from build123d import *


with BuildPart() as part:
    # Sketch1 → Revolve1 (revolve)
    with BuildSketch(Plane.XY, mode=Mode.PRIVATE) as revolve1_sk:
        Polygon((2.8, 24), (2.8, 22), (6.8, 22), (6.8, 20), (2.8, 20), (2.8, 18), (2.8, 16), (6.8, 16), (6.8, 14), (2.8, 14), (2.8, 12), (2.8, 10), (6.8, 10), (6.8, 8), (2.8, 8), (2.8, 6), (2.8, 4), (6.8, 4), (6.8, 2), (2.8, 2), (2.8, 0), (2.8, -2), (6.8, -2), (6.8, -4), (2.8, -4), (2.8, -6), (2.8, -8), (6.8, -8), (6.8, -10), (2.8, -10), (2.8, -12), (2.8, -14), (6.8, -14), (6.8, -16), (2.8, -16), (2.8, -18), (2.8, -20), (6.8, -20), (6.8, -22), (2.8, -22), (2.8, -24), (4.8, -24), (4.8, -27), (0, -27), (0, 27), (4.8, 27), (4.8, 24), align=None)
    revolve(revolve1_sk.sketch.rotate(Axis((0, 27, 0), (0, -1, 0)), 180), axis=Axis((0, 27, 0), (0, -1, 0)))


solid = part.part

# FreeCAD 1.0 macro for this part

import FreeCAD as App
import Part
import Sketcher
from FreeCAD import Vector
Q = App.Units.Quantity


def add_polygon(sketch, points):
    """Adds a closed chain of lines whose ends are joined by coincident constraints."""
    first, n = sketch.GeometryCount, len(points)
    for a, b in zip(points, points[1:] + points[:1]):
        sketch.addGeometry(Part.LineSegment(App.Vector(*a, 0), App.Vector(*b, 0)), False)
    for i in range(n):
        sketch.addConstraint(Sketcher.Constraint("Coincident", first + i, 2, first + (i + 1) % n, 1))

doc = App.newDocument("Part")
body = doc.addObject("PartDesign::Body", "Body")

# Sketch on XY plane
sketch1 = body.newObject("Sketcher::SketchObject", "Sketch")
sketch1.AttachmentSupport = (doc.getObject("XY_Plane"), [""])
sketch1.MapMode = "FlatFace"
add_polygon(sketch1, [(2.8, 22), (2.8, 24), (4.8, 24), (4.8, 27), (0, 27), (0, -27), (4.8, -27), (4.8, -24), (2.8, -24), (2.8, -22), (6.8, -22), (6.8, -20), (2.8, -20), (2.8, -16), (6.8, -16), (6.8, -14), (2.8, -14), (2.8, -10), (6.8, -10), (6.8, -8), (2.8, -8), (2.8, -4), (6.8, -4), (6.8, -2), (2.8, -2), (2.8, 2), (6.8, 2), (6.8, 4), (2.8, 4), (2.8, 8), (6.8, 8), (6.8, 10), (2.8, 10), (2.8, 14), (6.8, 14), (6.8, 16), (2.8, 16), (2.8, 20), (6.8, 20), (6.8, 22)])  # lines 0-39
sketch1.addConstraint([
    Sketcher.Constraint("Vertical", 0),
    Sketcher.Constraint("Horizontal", 1),
    Sketcher.Constraint("Vertical", 2),
    Sketcher.Constraint("Horizontal", 3),
    Sketcher.Constraint("Vertical", 4),
    Sketcher.Constraint("Horizontal", 5),
    Sketcher.Constraint("Vertical", 6),
    Sketcher.Constraint("Horizontal", 7),
    Sketcher.Constraint("Vertical", 8),
    Sketcher.Constraint("Horizontal", 9),
    Sketcher.Constraint("Vertical", 10),
    Sketcher.Constraint("Horizontal", 11),
    Sketcher.Constraint("Vertical", 12),
    Sketcher.Constraint("Horizontal", 13),
    Sketcher.Constraint("Vertical", 14),
    Sketcher.Constraint("Horizontal", 15),
    Sketcher.Constraint("Vertical", 16),
    Sketcher.Constraint("Horizontal", 17),
    Sketcher.Constraint("Vertical", 18),
    Sketcher.Constraint("Horizontal", 19),
    Sketcher.Constraint("Vertical", 20),
    Sketcher.Constraint("Horizontal", 21),
    Sketcher.Constraint("Vertical", 22),
    Sketcher.Constraint("Horizontal", 23),
    Sketcher.Constraint("Vertical", 24),
    Sketcher.Constraint("Horizontal", 25),
    Sketcher.Constraint("Vertical", 26),
    Sketcher.Constraint("Horizontal", 27),
    Sketcher.Constraint("Vertical", 28),
    Sketcher.Constraint("Horizontal", 29),
    Sketcher.Constraint("Vertical", 30),
    Sketcher.Constraint("Horizontal", 31),
    Sketcher.Constraint("Vertical", 32),
    Sketcher.Constraint("Horizontal", 33),
    Sketcher.Constraint("Vertical", 34),
    Sketcher.Constraint("Horizontal", 35),
    Sketcher.Constraint("Vertical", 36),
    Sketcher.Constraint("Horizontal", 37),
    Sketcher.Constraint("Vertical", 38),
    Sketcher.Constraint("Horizontal", 39),
    Sketcher.Constraint("Symmetric", 3, 2, 4, 2, -1, 1),
    Sketcher.Constraint("Symmetric", 1, 2, 6, 2, -1),
    Sketcher.Constraint("Symmetric", 22, 2, 25, 2, -1),
    Sketcher.Constraint("Symmetric", 20, 2, 27, 2, -1),
    Sketcher.Constraint("Symmetric", 18, 2, 29, 2, -1),
    Sketcher.Constraint("Symmetric", 16, 2, 31, 2, -1),
    Sketcher.Constraint("Symmetric", 14, 2, 33, 2, -1),
    Sketcher.Constraint("Symmetric", 12, 2, 35, 2, -1),
    Sketcher.Constraint("Symmetric", 10, 2, 37, 2, -1),
    Sketcher.Constraint("Symmetric", 8, 2, 39, 2, -1),
    Sketcher.Constraint("Vertical", 8, 2, 11, 2),
    Sketcher.Constraint("Vertical", 10, 2, 13, 2),
    Sketcher.Constraint("Vertical", 12, 2, 15, 2),
    Sketcher.Constraint("Vertical", 14, 2, 17, 2),
    Sketcher.Constraint("Vertical", 16, 2, 19, 2),
    Sketcher.Constraint("Vertical", 18, 2, 21, 2),
    Sketcher.Constraint("Vertical", 20, 2, 23, 2),
    Sketcher.Constraint("Equal", 7, 0),
    Sketcher.Constraint("Equal", 8, 10),
    Sketcher.Constraint("Equal", 39, 12),
    Sketcher.Constraint("Equal", 10, 14),
    Sketcher.Constraint("Equal", 12, 16),
    Sketcher.Constraint("Equal", 14, 18),
    Sketcher.Constraint("Equal", 16, 20),
    Sketcher.Constraint("Equal", 18, 22),
    Sketcher.Constraint("Equal", 20, 24),
    Sketcher.Constraint("DistanceX", 1, 1, 1, 2, Q("2 mm")),
    Sketcher.Constraint("DistanceX", 9, 1, 9, 2, Q("4 mm")),
    Sketcher.Constraint("DistanceY", 2, 1, 2, 2, Q("3 mm")),
    Sketcher.Constraint("DistanceX", 3, 2, 3, 1, Q("4.8 mm")),
])
revolution = body.newObject("PartDesign::Revolution", "Revolution")
revolution.Profile = sketch1
revolution.ReferenceAxis = (sketch1, ["V_Axis"])
revolution.Angle = 360

doc.recompute()
